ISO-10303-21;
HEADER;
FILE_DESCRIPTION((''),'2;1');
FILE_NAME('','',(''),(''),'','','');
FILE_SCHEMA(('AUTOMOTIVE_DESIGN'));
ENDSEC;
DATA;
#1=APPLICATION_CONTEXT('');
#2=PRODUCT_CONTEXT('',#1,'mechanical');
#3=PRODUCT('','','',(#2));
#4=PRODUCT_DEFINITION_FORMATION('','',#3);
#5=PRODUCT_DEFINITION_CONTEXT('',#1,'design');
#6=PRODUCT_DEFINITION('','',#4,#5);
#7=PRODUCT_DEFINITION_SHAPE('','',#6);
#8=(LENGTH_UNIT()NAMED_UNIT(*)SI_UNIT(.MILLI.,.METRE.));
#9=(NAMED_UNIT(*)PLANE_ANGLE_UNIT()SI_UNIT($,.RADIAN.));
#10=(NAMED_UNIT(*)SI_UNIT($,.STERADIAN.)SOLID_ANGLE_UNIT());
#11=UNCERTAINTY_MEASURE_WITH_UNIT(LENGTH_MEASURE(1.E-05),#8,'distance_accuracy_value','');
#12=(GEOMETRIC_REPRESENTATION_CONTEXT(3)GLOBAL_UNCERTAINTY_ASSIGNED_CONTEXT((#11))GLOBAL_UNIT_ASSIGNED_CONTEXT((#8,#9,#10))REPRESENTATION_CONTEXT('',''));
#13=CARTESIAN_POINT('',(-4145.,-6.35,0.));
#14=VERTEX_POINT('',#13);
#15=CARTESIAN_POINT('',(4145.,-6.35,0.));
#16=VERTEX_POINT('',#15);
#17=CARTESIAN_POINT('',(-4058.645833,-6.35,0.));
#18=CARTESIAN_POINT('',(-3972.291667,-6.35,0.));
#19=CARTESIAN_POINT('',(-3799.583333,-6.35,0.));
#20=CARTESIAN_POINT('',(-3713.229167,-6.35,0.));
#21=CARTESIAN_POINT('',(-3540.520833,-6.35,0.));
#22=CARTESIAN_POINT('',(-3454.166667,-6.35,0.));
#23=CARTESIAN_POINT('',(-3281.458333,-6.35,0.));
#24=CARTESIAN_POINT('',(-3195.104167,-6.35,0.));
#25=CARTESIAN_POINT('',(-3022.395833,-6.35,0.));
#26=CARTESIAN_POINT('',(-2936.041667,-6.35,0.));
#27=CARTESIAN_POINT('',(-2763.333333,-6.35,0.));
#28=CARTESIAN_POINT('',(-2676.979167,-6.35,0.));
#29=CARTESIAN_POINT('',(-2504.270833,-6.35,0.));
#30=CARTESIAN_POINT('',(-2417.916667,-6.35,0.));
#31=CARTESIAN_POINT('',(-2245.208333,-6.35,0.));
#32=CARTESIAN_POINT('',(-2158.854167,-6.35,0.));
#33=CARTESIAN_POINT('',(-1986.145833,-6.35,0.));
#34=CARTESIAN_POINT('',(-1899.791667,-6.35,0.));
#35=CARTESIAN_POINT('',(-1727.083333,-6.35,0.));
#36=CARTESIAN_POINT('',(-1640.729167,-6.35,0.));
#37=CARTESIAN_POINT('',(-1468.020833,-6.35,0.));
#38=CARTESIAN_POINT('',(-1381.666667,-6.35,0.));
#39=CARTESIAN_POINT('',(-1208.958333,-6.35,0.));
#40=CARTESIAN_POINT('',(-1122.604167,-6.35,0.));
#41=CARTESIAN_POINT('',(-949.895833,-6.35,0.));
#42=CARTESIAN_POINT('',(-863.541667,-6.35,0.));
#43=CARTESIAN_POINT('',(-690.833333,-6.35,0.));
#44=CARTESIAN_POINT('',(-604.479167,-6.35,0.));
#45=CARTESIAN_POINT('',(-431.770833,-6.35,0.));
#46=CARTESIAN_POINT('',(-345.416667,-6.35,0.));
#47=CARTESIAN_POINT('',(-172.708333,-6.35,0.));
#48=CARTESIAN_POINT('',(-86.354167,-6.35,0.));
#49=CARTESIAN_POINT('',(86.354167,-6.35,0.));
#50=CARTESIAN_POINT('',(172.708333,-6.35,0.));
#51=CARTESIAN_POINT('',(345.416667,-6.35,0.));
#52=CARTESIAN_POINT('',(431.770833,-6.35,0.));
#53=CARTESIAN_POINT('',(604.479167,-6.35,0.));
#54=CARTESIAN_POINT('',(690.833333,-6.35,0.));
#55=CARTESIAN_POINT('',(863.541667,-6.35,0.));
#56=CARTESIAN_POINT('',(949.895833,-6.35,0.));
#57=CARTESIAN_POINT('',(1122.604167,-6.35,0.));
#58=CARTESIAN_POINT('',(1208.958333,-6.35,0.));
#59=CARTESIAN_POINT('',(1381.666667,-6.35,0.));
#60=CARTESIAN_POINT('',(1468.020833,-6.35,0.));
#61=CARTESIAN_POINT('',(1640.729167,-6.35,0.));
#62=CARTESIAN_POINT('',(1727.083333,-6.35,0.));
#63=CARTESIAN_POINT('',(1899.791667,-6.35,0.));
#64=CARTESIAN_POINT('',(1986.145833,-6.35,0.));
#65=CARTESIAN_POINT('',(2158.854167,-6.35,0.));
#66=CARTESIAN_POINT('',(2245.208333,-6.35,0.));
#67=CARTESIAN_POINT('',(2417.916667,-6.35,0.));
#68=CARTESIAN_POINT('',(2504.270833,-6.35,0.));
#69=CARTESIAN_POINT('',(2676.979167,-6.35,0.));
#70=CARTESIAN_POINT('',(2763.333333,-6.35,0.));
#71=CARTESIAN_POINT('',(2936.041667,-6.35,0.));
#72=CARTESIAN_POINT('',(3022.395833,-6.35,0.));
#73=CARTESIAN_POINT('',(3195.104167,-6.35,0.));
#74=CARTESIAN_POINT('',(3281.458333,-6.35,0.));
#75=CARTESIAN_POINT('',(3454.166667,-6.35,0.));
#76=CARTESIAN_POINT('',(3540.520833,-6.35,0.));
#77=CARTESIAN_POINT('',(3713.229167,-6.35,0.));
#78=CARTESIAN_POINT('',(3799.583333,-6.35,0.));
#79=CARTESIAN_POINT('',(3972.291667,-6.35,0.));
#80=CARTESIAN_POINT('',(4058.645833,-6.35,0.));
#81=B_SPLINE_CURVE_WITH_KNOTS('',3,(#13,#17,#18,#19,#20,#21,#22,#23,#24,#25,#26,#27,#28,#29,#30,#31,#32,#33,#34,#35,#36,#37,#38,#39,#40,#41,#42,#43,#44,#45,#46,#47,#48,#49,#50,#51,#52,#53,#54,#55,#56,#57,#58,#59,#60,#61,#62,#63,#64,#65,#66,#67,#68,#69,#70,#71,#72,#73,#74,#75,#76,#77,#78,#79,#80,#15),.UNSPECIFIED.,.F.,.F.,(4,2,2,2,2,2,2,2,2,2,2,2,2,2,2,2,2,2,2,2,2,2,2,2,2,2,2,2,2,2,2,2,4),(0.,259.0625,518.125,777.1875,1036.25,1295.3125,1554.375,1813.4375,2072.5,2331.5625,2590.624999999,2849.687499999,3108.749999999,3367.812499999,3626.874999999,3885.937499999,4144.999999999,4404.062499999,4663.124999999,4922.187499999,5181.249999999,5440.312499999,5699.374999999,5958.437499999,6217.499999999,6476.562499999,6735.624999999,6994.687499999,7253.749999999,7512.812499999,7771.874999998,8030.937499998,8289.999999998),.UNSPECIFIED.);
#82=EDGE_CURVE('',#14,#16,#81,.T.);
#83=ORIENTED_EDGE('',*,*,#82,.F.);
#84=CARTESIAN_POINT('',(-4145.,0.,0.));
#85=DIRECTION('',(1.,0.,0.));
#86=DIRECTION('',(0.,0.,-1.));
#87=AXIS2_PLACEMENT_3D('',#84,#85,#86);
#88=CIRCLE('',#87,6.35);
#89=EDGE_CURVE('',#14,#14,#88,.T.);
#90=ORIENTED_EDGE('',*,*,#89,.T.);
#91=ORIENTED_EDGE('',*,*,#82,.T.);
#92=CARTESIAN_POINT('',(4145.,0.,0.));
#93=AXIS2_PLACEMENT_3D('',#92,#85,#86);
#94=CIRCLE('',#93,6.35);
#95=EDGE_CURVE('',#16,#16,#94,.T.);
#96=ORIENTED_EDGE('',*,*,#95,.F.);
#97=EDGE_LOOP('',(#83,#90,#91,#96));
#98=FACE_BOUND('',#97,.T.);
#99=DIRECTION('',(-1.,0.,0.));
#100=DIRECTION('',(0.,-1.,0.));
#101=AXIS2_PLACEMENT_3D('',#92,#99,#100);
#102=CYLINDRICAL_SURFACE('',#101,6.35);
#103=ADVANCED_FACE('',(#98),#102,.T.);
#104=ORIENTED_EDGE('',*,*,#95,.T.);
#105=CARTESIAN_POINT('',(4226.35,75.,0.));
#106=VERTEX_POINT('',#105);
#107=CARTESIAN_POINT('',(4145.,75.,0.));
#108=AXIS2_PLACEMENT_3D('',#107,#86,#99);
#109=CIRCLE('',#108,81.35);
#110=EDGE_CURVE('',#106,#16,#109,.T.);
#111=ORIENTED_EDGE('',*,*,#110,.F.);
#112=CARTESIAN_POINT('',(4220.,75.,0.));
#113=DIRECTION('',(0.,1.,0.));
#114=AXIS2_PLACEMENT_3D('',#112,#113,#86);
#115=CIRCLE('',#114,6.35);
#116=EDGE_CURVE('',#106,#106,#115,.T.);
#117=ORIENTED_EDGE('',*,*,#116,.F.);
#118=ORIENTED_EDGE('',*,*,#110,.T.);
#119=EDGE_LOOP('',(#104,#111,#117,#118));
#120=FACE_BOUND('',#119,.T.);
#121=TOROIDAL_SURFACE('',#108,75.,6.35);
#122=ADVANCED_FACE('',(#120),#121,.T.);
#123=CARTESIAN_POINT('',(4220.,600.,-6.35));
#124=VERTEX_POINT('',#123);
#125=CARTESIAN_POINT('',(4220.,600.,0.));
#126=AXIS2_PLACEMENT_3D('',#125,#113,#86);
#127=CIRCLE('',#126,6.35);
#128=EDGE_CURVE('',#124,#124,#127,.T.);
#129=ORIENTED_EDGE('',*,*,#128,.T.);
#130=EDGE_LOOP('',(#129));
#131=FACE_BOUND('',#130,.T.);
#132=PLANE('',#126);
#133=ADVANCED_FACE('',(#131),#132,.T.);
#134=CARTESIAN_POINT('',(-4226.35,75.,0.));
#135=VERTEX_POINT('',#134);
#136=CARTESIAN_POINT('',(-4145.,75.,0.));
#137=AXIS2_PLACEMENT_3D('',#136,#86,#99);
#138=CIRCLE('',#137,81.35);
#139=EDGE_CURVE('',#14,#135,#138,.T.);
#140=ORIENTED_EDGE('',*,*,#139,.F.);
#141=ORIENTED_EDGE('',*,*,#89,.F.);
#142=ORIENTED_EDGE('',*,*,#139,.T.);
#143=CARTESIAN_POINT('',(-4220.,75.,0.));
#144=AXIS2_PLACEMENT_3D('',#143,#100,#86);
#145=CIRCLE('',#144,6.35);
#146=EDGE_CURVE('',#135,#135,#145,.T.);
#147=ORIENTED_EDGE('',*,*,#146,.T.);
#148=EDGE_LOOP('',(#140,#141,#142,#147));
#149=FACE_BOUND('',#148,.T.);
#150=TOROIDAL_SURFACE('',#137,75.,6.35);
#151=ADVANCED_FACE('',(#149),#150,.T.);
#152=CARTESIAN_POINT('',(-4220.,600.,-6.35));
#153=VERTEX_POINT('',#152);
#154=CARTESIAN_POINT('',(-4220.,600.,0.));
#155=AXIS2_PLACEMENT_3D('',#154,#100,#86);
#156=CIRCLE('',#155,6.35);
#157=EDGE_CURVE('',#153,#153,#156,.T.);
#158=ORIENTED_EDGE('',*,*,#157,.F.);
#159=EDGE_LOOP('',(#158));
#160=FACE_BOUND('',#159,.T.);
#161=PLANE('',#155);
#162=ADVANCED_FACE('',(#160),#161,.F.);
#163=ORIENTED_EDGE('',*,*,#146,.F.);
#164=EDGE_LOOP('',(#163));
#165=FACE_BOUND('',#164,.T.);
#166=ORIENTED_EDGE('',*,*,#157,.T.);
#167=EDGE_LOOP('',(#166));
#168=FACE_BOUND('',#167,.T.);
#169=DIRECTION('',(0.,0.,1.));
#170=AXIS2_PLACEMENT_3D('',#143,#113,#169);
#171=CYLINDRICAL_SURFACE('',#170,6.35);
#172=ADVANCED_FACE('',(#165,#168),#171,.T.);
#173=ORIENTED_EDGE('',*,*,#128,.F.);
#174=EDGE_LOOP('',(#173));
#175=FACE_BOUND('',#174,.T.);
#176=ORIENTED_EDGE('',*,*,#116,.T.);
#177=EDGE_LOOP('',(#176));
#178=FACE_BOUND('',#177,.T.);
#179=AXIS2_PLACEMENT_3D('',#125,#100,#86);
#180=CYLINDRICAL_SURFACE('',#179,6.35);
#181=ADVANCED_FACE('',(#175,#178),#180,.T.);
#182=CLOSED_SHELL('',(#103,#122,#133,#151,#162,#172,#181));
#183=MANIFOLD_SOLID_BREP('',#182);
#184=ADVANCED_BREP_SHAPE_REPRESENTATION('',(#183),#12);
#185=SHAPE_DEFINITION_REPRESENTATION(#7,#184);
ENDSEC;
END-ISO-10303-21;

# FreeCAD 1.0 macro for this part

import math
import FreeCAD as App
import Part
import Sketcher
from FreeCAD import Vector

doc = App.newDocument("Part")
params = doc.addObject("Spreadsheet::Sheet", "Params")
for row, (alias, value) in enumerate([
    ("sketch1_diameter", "12.7 mm"),
    ("sketch2_radius", "75 mm"),
    ("sketch2_width", "8290 mm"),
    ("sketch2_height", "525 mm"),
], start=1):
    params.set(f"A{row}", alias)
    params.set(f"B{row}", "=" + value)
    params.setAlias(f"B{row}", alias)

body = doc.addObject("PartDesign::Body", "Body")

# Sketch on XZ plane
sketch1 = body.newObject("Sketcher::SketchObject", "Sketch")
sketch1.AttachmentSupport = (doc.getObject("XZ_Plane"), [""])
sketch1.MapMode = "FlatFace"
sketch1.AttachmentOffset = App.Placement(Vector(0, 0, -600), App.Rotation())
sketch1.addGeometry(Part.Circle(Vector(-4220, 0, 0), Vector(0, 0, 1), 6), False)
sketch1.addConstraint([
    Sketcher.Constraint("PointOnObject", 0, 3, -1),
    Sketcher.Constraint("Diameter", 0, 12.7),
    Sketcher.Constraint("DistanceX", 0, 3, -1, 1, 4220.0),
])
sketch1.setExpression("Constraints[1]", "Params.sketch1_diameter")

# Sketch on XY plane
sketch2 = body.newObject("Sketcher::SketchObject", "Sketch001")
sketch2.AttachmentSupport = (doc.getObject("XY_Plane"), [""])
sketch2.MapMode = "FlatFace"
sketch2.addGeometry([
    Part.LineSegment(Vector(-4220, 600, 0), Vector(-4220, 75, 0)),  # 0
    Part.ArcOfCircle(Part.Circle(Vector(-4145, 75, 0), Vector(0, 0, 1), 75), math.radians(180), math.radians(270)),  # 1
    Part.LineSegment(Vector(-4145, 0, 0), Vector(4145, 0, 0)),  # 2
    Part.ArcOfCircle(Part.Circle(Vector(4145, 75, 0), Vector(0, 0, 1), 75), math.radians(-90), math.radians(0)),  # 3
    Part.LineSegment(Vector(4220, 75, 0), Vector(4220, 600, 0)),  # 4
], False)
sketch2.addConstraint([
    Sketcher.Constraint("Tangent", 0, 2, 1, 1),
    Sketcher.Constraint("Tangent", 1, 2, 2, 1),
    Sketcher.Constraint("Tangent", 2, 2, 3, 1),
    Sketcher.Constraint("Tangent", 3, 2, 4, 1),
    Sketcher.Constraint("Vertical", 0),
    Sketcher.Constraint("Horizontal", 2),
    Sketcher.Constraint("Vertical", 4),
    Sketcher.Constraint("Equal", 1, 3),
    Sketcher.Constraint("Symmetric", 1, 2, 2, 2, -1, 1),
    Sketcher.Constraint("Horizontal", 0, 1, 4, 2),
    Sketcher.Constraint("Radius", 1, 75.0),
    Sketcher.Constraint("DistanceX", 2, 1, 2, 2, 8290.0),
    Sketcher.Constraint("DistanceY", 0, 2, 0, 1, 525.0),
])
sketch2.setExpression("Constraints[10]", "Params.sketch2_radius")
sketch2.setExpression("Constraints[11]", "Params.sketch2_width")
sketch2.setExpression("Constraints[12]", "Params.sketch2_height")
doc.recompute()

additivepipe = body.newObject("PartDesign::AdditivePipe", "AdditivePipe")
additivepipe.Profile = sketch1
additivepipe.Spine = (sketch2, ["Edge1", "Edge2", "Edge3", "Edge4", "Edge5"])

doc.recompute()
